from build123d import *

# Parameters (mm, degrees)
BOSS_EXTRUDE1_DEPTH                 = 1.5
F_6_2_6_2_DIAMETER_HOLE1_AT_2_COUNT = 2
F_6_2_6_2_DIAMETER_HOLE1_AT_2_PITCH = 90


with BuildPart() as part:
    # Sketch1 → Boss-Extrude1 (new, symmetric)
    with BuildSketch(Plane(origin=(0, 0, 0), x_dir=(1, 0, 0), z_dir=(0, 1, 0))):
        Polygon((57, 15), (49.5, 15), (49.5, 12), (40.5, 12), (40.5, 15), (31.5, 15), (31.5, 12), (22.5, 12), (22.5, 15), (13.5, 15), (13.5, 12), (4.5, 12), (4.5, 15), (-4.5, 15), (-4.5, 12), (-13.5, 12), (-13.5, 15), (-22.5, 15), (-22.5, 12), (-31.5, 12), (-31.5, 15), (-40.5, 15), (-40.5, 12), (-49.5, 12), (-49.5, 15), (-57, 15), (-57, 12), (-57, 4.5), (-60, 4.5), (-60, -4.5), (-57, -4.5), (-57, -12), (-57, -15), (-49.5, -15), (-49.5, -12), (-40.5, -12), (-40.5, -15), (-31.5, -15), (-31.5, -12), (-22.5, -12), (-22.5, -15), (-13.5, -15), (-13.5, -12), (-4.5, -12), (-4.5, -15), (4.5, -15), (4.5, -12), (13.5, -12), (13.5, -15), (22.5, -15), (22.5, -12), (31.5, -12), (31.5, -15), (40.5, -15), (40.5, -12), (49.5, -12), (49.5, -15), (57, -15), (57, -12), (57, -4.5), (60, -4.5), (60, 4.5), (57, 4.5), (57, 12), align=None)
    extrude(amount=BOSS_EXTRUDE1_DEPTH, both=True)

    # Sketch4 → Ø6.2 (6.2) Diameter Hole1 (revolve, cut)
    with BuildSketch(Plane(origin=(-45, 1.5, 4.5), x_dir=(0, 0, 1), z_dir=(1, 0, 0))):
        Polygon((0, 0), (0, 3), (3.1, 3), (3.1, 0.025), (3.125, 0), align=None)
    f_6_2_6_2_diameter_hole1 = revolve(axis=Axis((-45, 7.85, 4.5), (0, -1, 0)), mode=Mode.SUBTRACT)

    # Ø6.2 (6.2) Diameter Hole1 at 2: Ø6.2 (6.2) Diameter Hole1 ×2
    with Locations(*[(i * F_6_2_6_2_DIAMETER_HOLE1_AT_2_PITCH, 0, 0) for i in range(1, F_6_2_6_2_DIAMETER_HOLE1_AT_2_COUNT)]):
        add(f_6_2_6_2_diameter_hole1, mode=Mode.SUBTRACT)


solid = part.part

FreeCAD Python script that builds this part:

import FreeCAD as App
import Part
import Sketcher
Q = App.Units.Quantity

doc = App.newDocument("Part")
body = doc.addObject("PartDesign::Body", "Body")

sketch1 = doc.addObject("Sketcher::SketchObject", "Sketch")
body.addObject(sketch1)
sketch1.AttachmentSupport = (doc.XZ_Plane, [""])
sketch1.MapMode = "FlatFace"
sketch1.addGeometry(Part.LineSegment(App.Vector(57, -15, 0), App.Vector(49.5, -15, 0)), False)
sketch1.addGeometry(Part.LineSegment(App.Vector(49.5, -15, 0), App.Vector(49.5, -12, 0)), False)
sketch1.addGeometry(Part.LineSegment(App.Vector(49.5, -12, 0), App.Vector(40.5, -12, 0)), False)
sketch1.addGeometry(Part.LineSegment(App.Vector(40.5, -12, 0), App.Vector(40.5, -15, 0)), False)
sketch1.addGeometry(Part.LineSegment(App.Vector(40.5, -15, 0), App.Vector(31.5, -15, 0)), False)
sketch1.addGeometry(Part.LineSegment(App.Vector(31.5, -15, 0), App.Vector(31.5, -12, 0)), False)
sketch1.addGeometry(Part.LineSegment(App.Vector(31.5, -12, 0), App.Vector(22.5, -12, 0)), False)
sketch1.addGeometry(Part.LineSegment(App.Vector(22.5, -12, 0), App.Vector(22.5, -15, 0)), False)
sketch1.addGeometry(Part.LineSegment(App.Vector(22.5, -15, 0), App.Vector(13.5, -15, 0)), False)
sketch1.addGeometry(Part.LineSegment(App.Vector(13.5, -15, 0), App.Vector(13.5, -12, 0)), False)
sketch1.addGeometry(Part.LineSegment(App.Vector(13.5, -12, 0), App.Vector(4.5, -12, 0)), False)
sketch1.addGeometry(Part.LineSegment(App.Vector(4.5, -12, 0), App.Vector(4.5, -15, 0)), False)
sketch1.addGeometry(Part.LineSegment(App.Vector(4.5, -15, 0), App.Vector(-4.5, -15, 0)), False)
sketch1.addGeometry(Part.LineSegment(App.Vector(-4.5, -15, 0), App.Vector(-4.5, -12, 0)), False)
sketch1.addGeometry(Part.LineSegment(App.Vector(-4.5, -12, 0), App.Vector(-13.5, -12, 0)), False)
sketch1.addGeometry(Part.LineSegment(App.Vector(-13.5, -12, 0), App.Vector(-13.5, -15, 0)), False)
sketch1.addGeometry(Part.LineSegment(App.Vector(-13.5, -15, 0), App.Vector(-22.5, -15, 0)), False)
sketch1.addGeometry(Part.LineSegment(App.Vector(-22.5, -15, 0), App.Vector(-22.5, -12, 0)), False)
sketch1.addGeometry(Part.LineSegment(App.Vector(-22.5, -12, 0), App.Vector(-31.5, -12, 0)), False)
sketch1.addGeometry(Part.LineSegment(App.Vector(-31.5, -12, 0), App.Vector(-31.5, -15, 0)), False)
sketch1.addGeometry(Part.LineSegment(App.Vector(-31.5, -15, 0), App.Vector(-40.5, -15, 0)), False)
sketch1.addGeometry(Part.LineSegment(App.Vector(-40.5, -15, 0), App.Vector(-40.5, -12, 0)), False)
sketch1.addGeometry(Part.LineSegment(App.Vector(-40.5, -12, 0), App.Vector(-49.5, -12, 0)), False)
sketch1.addGeometry(Part.LineSegment(App.Vector(-49.5, -12, 0), App.Vector(-49.5, -15, 0)), False)
sketch1.addGeometry(Part.LineSegment(App.Vector(-49.5, -15, 0), App.Vector(-57, -15, 0)), False)
sketch1.addGeometry(Part.LineSegment(App.Vector(-57, -15, 0), App.Vector(-57, -4.5, 0)), False)
sketch1.addGeometry(Part.LineSegment(App.Vector(-57, -4.5, 0), App.Vector(-60, -4.5, 0)), False)
sketch1.addGeometry(Part.LineSegment(App.Vector(-60, -4.5, 0), App.Vector(-60, 4.5, 0)), False)
sketch1.addGeometry(Part.LineSegment(App.Vector(-60, 4.5, 0), App.Vector(-57, 4.5, 0)), False)
sketch1.addGeometry(Part.LineSegment(App.Vector(-57, 4.5, 0), App.Vector(-57, 15, 0)), False)
sketch1.addGeometry(Part.LineSegment(App.Vector(-57, 15, 0), App.Vector(-49.5, 15, 0)), False)
sketch1.addGeometry(Part.LineSegment(App.Vector(-49.5, 15, 0), App.Vector(-49.5, 12, 0)), False)
sketch1.addGeometry(Part.LineSegment(App.Vector(-49.5, 12, 0), App.Vector(-40.5, 12, 0)), False)
sketch1.addGeometry(Part.LineSegment(App.Vector(-40.5, 12, 0), App.Vector(-40.5, 15, 0)), False)
sketch1.addGeometry(Part.LineSegment(App.Vector(-40.5, 15, 0), App.Vector(-31.5, 15, 0)), False)
sketch1.addGeometry(Part.LineSegment(App.Vector(-31.5, 15, 0), App.Vector(-31.5, 12, 0)), False)
sketch1.addGeometry(Part.LineSegment(App.Vector(-31.5, 12, 0), App.Vector(-22.5, 12, 0)), False)
sketch1.addGeometry(Part.LineSegment(App.Vector(-22.5, 12, 0), App.Vector(-22.5, 15, 0)), False)
sketch1.addGeometry(Part.LineSegment(App.Vector(-22.5, 15, 0), App.Vector(-13.5, 15, 0)), False)
sketch1.addGeometry(Part.LineSegment(App.Vector(-13.5, 15, 0), App.Vector(-13.5, 12, 0)), False)
sketch1.addGeometry(Part.LineSegment(App.Vector(-13.5, 12, 0), App.Vector(-4.5, 12, 0)), False)
sketch1.addGeometry(Part.LineSegment(App.Vector(-4.5, 12, 0), App.Vector(-4.5, 15, 0)), False)
sketch1.addGeometry(Part.LineSegment(App.Vector(-4.5, 15, 0), App.Vector(4.5, 15, 0)), False)
sketch1.addGeometry(Part.LineSegment(App.Vector(4.5, 15, 0), App.Vector(4.5, 12, 0)), False)
sketch1.addGeometry(Part.LineSegment(App.Vector(4.5, 12, 0), App.Vector(13.5, 12, 0)), False)
sketch1.addGeometry(Part.LineSegment(App.Vector(13.5, 12, 0), App.Vector(13.5, 15, 0)), False)
sketch1.addGeometry(Part.LineSegment(App.Vector(13.5, 15, 0), App.Vector(22.5, 15, 0)), False)
sketch1.addGeometry(Part.LineSegment(App.Vector(22.5, 15, 0), App.Vector(22.5, 12, 0)), False)
sketch1.addGeometry(Part.LineSegment(App.Vector(22.5, 12, 0), App.Vector(31.5, 12, 0)), False)
sketch1.addGeometry(Part.LineSegment(App.Vector(31.5, 12, 0), App.Vector(31.5, 15, 0)), False)
sketch1.addGeometry(Part.LineSegment(App.Vector(31.5, 15, 0), App.Vector(40.5, 15, 0)), False)
sketch1.addGeometry(Part.LineSegment(App.Vector(40.5, 15, 0), App.Vector(40.5, 12, 0)), False)
sketch1.addGeometry(Part.LineSegment(App.Vector(40.5, 12, 0), App.Vector(49.5, 12, 0)), False)
sketch1.addGeometry(Part.LineSegment(App.Vector(49.5, 12, 0), App.Vector(49.5, 15, 0)), False)
sketch1.addGeometry(Part.LineSegment(App.Vector(49.5, 15, 0), App.Vector(57, 15, 0)), False)
sketch1.addGeometry(Part.LineSegment(App.Vector(57, 15, 0), App.Vector(57, 4.5, 0)), False)
sketch1.addGeometry(Part.LineSegment(App.Vector(57, 4.5, 0), App.Vector(60, 4.5, 0)), False)
sketch1.addGeometry(Part.LineSegment(App.Vector(60, 4.5, 0), App.Vector(60, -4.5, 0)), False)
sketch1.addGeometry(Part.LineSegment(App.Vector(60, -4.5, 0), App.Vector(57, -4.5, 0)), False)
sketch1.addGeometry(Part.LineSegment(App.Vector(57, -4.5, 0), App.Vector(57, -15, 0)), False)
sketch1.addConstraint(Sketcher.Constraint("Coincident", 0, 2, 1, 1))
sketch1.addConstraint(Sketcher.Constraint("Coincident", 1, 2, 2, 1))
sketch1.addConstraint(Sketcher.Constraint("Coincident", 2, 2, 3, 1))
sketch1.addConstraint(Sketcher.Constraint("Coincident", 3, 2, 4, 1))
sketch1.addConstraint(Sketcher.Constraint("Coincident", 4, 2, 5, 1))
sketch1.addConstraint(Sketcher.Constraint("Coincident", 5, 2, 6, 1))
sketch1.addConstraint(Sketcher.Constraint("Coincident", 6, 2, 7, 1))
sketch1.addConstraint(Sketcher.Constraint("Coincident", 7, 2, 8, 1))
sketch1.addConstraint(Sketcher.Constraint("Coincident", 8, 2, 9, 1))
sketch1.addConstraint(Sketcher.Constraint("Coincident", 9, 2, 10, 1))
sketch1.addConstraint(Sketcher.Constraint("Coincident", 10, 2, 11, 1))
sketch1.addConstraint(Sketcher.Constraint("Coincident", 11, 2, 12, 1))
sketch1.addConstraint(Sketcher.Constraint("Coincident", 12, 2, 13, 1))
sketch1.addConstraint(Sketcher.Constraint("Coincident", 13, 2, 14, 1))
sketch1.addConstraint(Sketcher.Constraint("Coincident", 14, 2, 15, 1))
sketch1.addConstraint(Sketcher.Constraint("Coincident", 15, 2, 16, 1))
sketch1.addConstraint(Sketcher.Constraint("Coincident", 16, 2, 17, 1))
sketch1.addConstraint(Sketcher.Constraint("Coincident", 17, 2, 18, 1))
sketch1.addConstraint(Sketcher.Constraint("Coincident", 18, 2, 19, 1))
sketch1.addConstraint(Sketcher.Constraint("Coincident", 19, 2, 20, 1))
sketch1.addConstraint(Sketcher.Constraint("Coincident", 20, 2, 21, 1))
sketch1.addConstraint(Sketcher.Constraint("Coincident", 21, 2, 22, 1))
sketch1.addConstraint(Sketcher.Constraint("Coincident", 22, 2, 23, 1))
sketch1.addConstraint(Sketcher.Constraint("Coincident", 23, 2, 24, 1))
sketch1.addConstraint(Sketcher.Constraint("Coincident", 24, 2, 25, 1))
sketch1.addConstraint(Sketcher.Constraint("Coincident", 25, 2, 26, 1))
sketch1.addConstraint(Sketcher.Constraint("Coincident", 26, 2, 27, 1))
sketch1.addConstraint(Sketcher.Constraint("Coincident", 27, 2, 28, 1))
sketch1.addConstraint(Sketcher.Constraint("Coincident", 28, 2, 29, 1))
sketch1.addConstraint(Sketcher.Constraint("Coincident", 29, 2, 30, 1))
sketch1.addConstraint(Sketcher.Constraint("Coincident", 30, 2, 31, 1))
sketch1.addConstraint(Sketcher.Constraint("Coincident", 31, 2, 32, 1))
sketch1.addConstraint(Sketcher.Constraint("Coincident", 32, 2, 33, 1))
sketch1.addConstraint(Sketcher.Constraint("Coincident", 33, 2, 34, 1))
sketch1.addConstraint(Sketcher.Constraint("Coincident", 34, 2, 35, 1))
sketch1.addConstraint(Sketcher.Constraint("Coincident", 35, 2, 36, 1))
sketch1.addConstraint(Sketcher.Constraint("Coincident", 36, 2, 37, 1))
sketch1.addConstraint(Sketcher.Constraint("Coincident", 37, 2, 38, 1))
sketch1.addConstraint(Sketcher.Constraint("Coincident", 38, 2, 39, 1))
sketch1.addConstraint(Sketcher.Constraint("Coincident", 39, 2, 40, 1))
sketch1.addConstraint(Sketcher.Constraint("Coincident", 40, 2, 41, 1))
sketch1.addConstraint(Sketcher.Constraint("Coincident", 41, 2, 42, 1))
sketch1.addConstraint(Sketcher.Constraint("Coincident", 42, 2, 43, 1))
sketch1.addConstraint(Sketcher.Constraint("Coincident", 43, 2, 44, 1))
sketch1.addConstraint(Sketcher.Constraint("Coincident", 44, 2, 45, 1))
sketch1.addConstraint(Sketcher.Constraint("Coincident", 45, 2, 46, 1))
sketch1.addConstraint(Sketcher.Constraint("Coincident", 46, 2, 47, 1))
sketch1.addConstraint(Sketcher.Constraint("Coincident", 47, 2, 48, 1))
sketch1.addConstraint(Sketcher.Constraint("Coincident", 48, 2, 49, 1))
sketch1.addConstraint(Sketcher.Constraint("Coincident", 49, 2, 50, 1))
sketch1.addConstraint(Sketcher.Constraint("Coincident", 50, 2, 51, 1))
sketch1.addConstraint(Sketcher.Constraint("Coincident", 51, 2, 52, 1))
sketch1.addConstraint(Sketcher.Constraint("Coincident", 52, 2, 53, 1))
sketch1.addConstraint(Sketcher.Constraint("Coincident", 53, 2, 54, 1))
sketch1.addConstraint(Sketcher.Constraint("Coincident", 54, 2, 55, 1))
sketch1.addConstraint(Sketcher.Constraint("Coincident", 55, 2, 56, 1))
sketch1.addConstraint(Sketcher.Constraint("Coincident", 56, 2, 57, 1))
sketch1.addConstraint(Sketcher.Constraint("Coincident", 57, 2, 58, 1))
sketch1.addConstraint(Sketcher.Constraint("Coincident", 58, 2, 59, 1))
sketch1.addConstraint(Sketcher.Constraint("Coincident", 59, 2, 0, 1))
sketch1.addConstraint(Sketcher.Constraint("Horizontal", 0))
sketch1.addConstraint(Sketcher.Constraint("Vertical", 1))
sketch1.addConstraint(Sketcher.Constraint("Horizontal", 2))
sketch1.addConstraint(Sketcher.Constraint("Vertical", 3))
sketch1.addConstraint(Sketcher.Constraint("Horizontal", 4))
sketch1.addConstraint(Sketcher.Constraint("Vertical", 5))
sketch1.addConstraint(Sketcher.Constraint("Horizontal", 6))
sketch1.addConstraint(Sketcher.Constraint("Vertical", 7))
sketch1.addConstraint(Sketcher.Constraint("Horizontal", 8))
sketch1.addConstraint(Sketcher.Constraint("Vertical", 9))
sketch1.addConstraint(Sketcher.Constraint("Horizontal", 10))
sketch1.addConstraint(Sketcher.Constraint("Vertical", 11))
sketch1.addConstraint(Sketcher.Constraint("Horizontal", 12))
sketch1.addConstraint(Sketcher.Constraint("Vertical", 13))
sketch1.addConstraint(Sketcher.Constraint("Horizontal", 14))
sketch1.addConstraint(Sketcher.Constraint("Vertical", 15))
sketch1.addConstraint(Sketcher.Constraint("Horizontal", 16))
sketch1.addConstraint(Sketcher.Constraint("Vertical", 17))
sketch1.addConstraint(Sketcher.Constraint("Horizontal", 18))
sketch1.addConstraint(Sketcher.Constraint("Vertical", 19))
sketch1.addConstraint(Sketcher.Constraint("Horizontal", 20))
sketch1.addConstraint(Sketcher.Constraint("Vertical", 21))
sketch1.addConstraint(Sketcher.Constraint("Horizontal", 22))
sketch1.addConstraint(Sketcher.Constraint("Vertical", 23))
sketch1.addConstraint(Sketcher.Constraint("Horizontal", 24))
sketch1.addConstraint(Sketcher.Constraint("Vertical", 25))
sketch1.addConstraint(Sketcher.Constraint("Horizontal", 26))
sketch1.addConstraint(Sketcher.Constraint("Vertical", 27))
sketch1.addConstraint(Sketcher.Constraint("Horizontal", 28))
sketch1.addConstraint(Sketcher.Constraint("Vertical", 29))
sketch1.addConstraint(Sketcher.Constraint("Horizontal", 30))
sketch1.addConstraint(Sketcher.Constraint("Vertical", 31))
sketch1.addConstraint(Sketcher.Constraint("Horizontal", 32))
sketch1.addConstraint(Sketcher.Constraint("Vertical", 33))
sketch1.addConstraint(Sketcher.Constraint("Horizontal", 34))
sketch1.addConstraint(Sketcher.Constraint("Vertical", 35))
sketch1.addConstraint(Sketcher.Constraint("Horizontal", 36))
sketch1.addConstraint(Sketcher.Constraint("Vertical", 37))
sketch1.addConstraint(Sketcher.Constraint("Horizontal", 38))
sketch1.addConstraint(Sketcher.Constraint("Vertical", 39))
sketch1.addConstraint(Sketcher.Constraint("Horizontal", 40))
sketch1.addConstraint(Sketcher.Constraint("Vertical", 41))
sketch1.addConstraint(Sketcher.Constraint("Horizontal", 42))
sketch1.addConstraint(Sketcher.Constraint("Vertical", 43))
sketch1.addConstraint(Sketcher.Constraint("Horizontal", 44))
sketch1.addConstraint(Sketcher.Constraint("Vertical", 45))
sketch1.addConstraint(Sketcher.Constraint("Horizontal", 46))
sketch1.addConstraint(Sketcher.Constraint("Vertical", 47))
sketch1.addConstraint(Sketcher.Constraint("Horizontal", 48))
sketch1.addConstraint(Sketcher.Constraint("Vertical", 49))
sketch1.addConstraint(Sketcher.Constraint("Horizontal", 50))
sketch1.addConstraint(Sketcher.Constraint("Vertical", 51))
sketch1.addConstraint(Sketcher.Constraint("Horizontal", 52))
sketch1.addConstraint(Sketcher.Constraint("Vertical", 53))
sketch1.addConstraint(Sketcher.Constraint("Horizontal", 54))
sketch1.addConstraint(Sketcher.Constraint("Vertical", 55))
sketch1.addConstraint(Sketcher.Constraint("Horizontal", 56))
sketch1.addConstraint(Sketcher.Constraint("Vertical", 57))
sketch1.addConstraint(Sketcher.Constraint("Horizontal", 58))
sketch1.addConstraint(Sketcher.Constraint("Vertical", 59))
sketch1.addConstraint(Sketcher.Constraint("Symmetric", 0, 2, 30, 2, -1, 1))
sketch1.addConstraint(Sketcher.Constraint("Symmetric", 2, 2, 32, 2, -1, 1))
sketch1.addConstraint(Sketcher.Constraint("Symmetric", 4, 2, 34, 2, -1, 1))
sketch1.addConstraint(Sketcher.Constraint("Symmetric", 6, 2, 36, 2, -1, 1))
sketch1.addConstraint(Sketcher.Constraint("Symmetric", 8, 2, 38, 2, -1, 1))
sketch1.addConstraint(Sketcher.Constraint("Symmetric", 10, 2, 40, 2, -1, 1))
sketch1.addConstraint(Sketcher.Constraint("Symmetric", 12, 2, 42, 2, -1, 1))
sketch1.addConstraint(Sketcher.Constraint("Symmetric", 14, 2, 44, 2, -1, 1))
sketch1.addConstraint(Sketcher.Constraint("Symmetric", 16, 2, 46, 2, -1, 1))
sketch1.addConstraint(Sketcher.Constraint("Symmetric", 18, 2, 48, 2, -1, 1))
sketch1.addConstraint(Sketcher.Constraint("Symmetric", 20, 2, 50, 2, -1, 1))
sketch1.addConstraint(Sketcher.Constraint("Symmetric", 22, 2, 52, 2, -1, 1))
sketch1.addConstraint(Sketcher.Constraint("Symmetric", 24, 2, 54, 2, -1, 1))
sketch1.addConstraint(Sketcher.Constraint("Symmetric", 26, 2, 56, 2, -1, 1))
sketch1.addConstraint(Sketcher.Constraint("Symmetric", 28, 2, 58, 2, -1, 1))
sketch1.addConstraint(Sketcher.Constraint("Symmetric", 10, 2, 13, 2, -2))
sketch1.addConstraint(Sketcher.Constraint("Symmetric", 8, 2, 15, 2, -2))
sketch1.addConstraint(Sketcher.Constraint("Symmetric", 6, 2, 17, 2, -2))
sketch1.addConstraint(Sketcher.Constraint("Symmetric", 4, 2, 19, 2, -2))
sketch1.addConstraint(Sketcher.Constraint("Symmetric", 2, 2, 21, 2, -2))
sketch1.addConstraint(Sketcher.Constraint("Symmetric", 0, 2, 23, 2, -2))
sketch1.addConstraint(Sketcher.Constraint("Symmetric", 28, 2, 55, 2, -2))
sketch1.addConstraint(Sketcher.Constraint("Horizontal", 0, 2, 3, 2))
sketch1.addConstraint(Sketcher.Constraint("Horizontal", 2, 2, 5, 2))
sketch1.addConstraint(Sketcher.Constraint("Horizontal", 4, 2, 7, 2))
sketch1.addConstraint(Sketcher.Constraint("Horizontal", 6, 2, 9, 2))
sketch1.addConstraint(Sketcher.Constraint("Horizontal", 8, 2, 11, 2))
sketch1.addConstraint(Sketcher.Constraint("Equal", 2, 4))
sketch1.addConstraint(Sketcher.Constraint("Equal", 4, 6))
sketch1.addConstraint(Sketcher.Constraint("Equal", 6, 8))
sketch1.addConstraint(Sketcher.Constraint("Equal", 8, 10))
sketch1.addConstraint(Sketcher.Constraint("Equal", 10, 12))
sketch1.addConstraint(Sketcher.Constraint("Equal", 58, 1))
sketch1.addConstraint(Sketcher.Constraint("Equal", 52, 27))
sketch1.addConstraint(Sketcher.Constraint("DistanceX", 2, 2, 2, 1, Q("9 mm")))
sketch1.addConstraint(Sketcher.Constraint("DistanceX", 26, 2, 26, 1, Q("3 mm")))
sketch1.addConstraint(Sketcher.Constraint("DistanceX", 0, 2, 0, 1, Q("7.5 mm")))
sketch1.addConstraint(Sketcher.Constraint("DistanceY", 25, 1, 25, 2, Q("10.5 mm")))
pad1 = doc.addObject("PartDesign::Pad", "Pad")
body.addObject(pad1)
pad1.Profile = sketch1
pad1.Length = 3
pad1.Midplane = True

sketch2 = doc.addObject("Sketcher::SketchObject", "Sketch001")
body.addObject(sketch2)
sketch2.AttachmentSupport = (doc.YZ_Plane, [""])
sketch2.MapMode = "FlatFace"
sketch2.AttachmentOffset = App.Placement(App.Vector(0, 0, -45), App.Rotation())
sketch2.addGeometry(Part.LineSegment(App.Vector(-1.5, 4.5, 0), App.Vector(1.5, 4.5, 0)), False)
sketch2.addGeometry(Part.LineSegment(App.Vector(1.5, 4.5, 0), App.Vector(1.5, 7.625, 0)), False)
sketch2.addGeometry(Part.LineSegment(App.Vector(1.5, 7.625, 0), App.Vector(1.475, 7.6, 0)), False)
sketch2.addGeometry(Part.LineSegment(App.Vector(1.475, 7.6, 0), App.Vector(-1.5, 7.6, 0)), False)
sketch2.addGeometry(Part.LineSegment(App.Vector(-1.5, 7.6, 0), App.Vector(-1.5, 4.5, 0)), False)
sketch2.addGeometry(Part.LineSegment(App.Vector(1.5, 4.5, 0), App.Vector(-1.5, 4.5, 0)), True)
sketch2.addConstraint(Sketcher.Constraint("Coincident", 0, 2, 1, 1))
sketch2.addConstraint(Sketcher.Constraint("Coincident", 1, 2, 2, 1))
sketch2.addConstraint(Sketcher.Constraint("Coincident", 2, 2, 3, 1))
sketch2.addConstraint(Sketcher.Constraint("Coincident", 3, 2, 4, 1))
sketch2.addConstraint(Sketcher.Constraint("Coincident", 4, 2, 0, 1))
sketch2.addConstraint(Sketcher.Constraint("Horizontal", 0))
sketch2.addConstraint(Sketcher.Constraint("Vertical", 1))
sketch2.addConstraint(Sketcher.Constraint("Horizontal", 3))
sketch2.addConstraint(Sketcher.Constraint("Vertical", 4))
sketch2.addConstraint(Sketcher.Constraint("Horizontal", 5))
sketch2.addConstraint(Sketcher.Constraint("Coincident", 5, 1, 0, 2))
sketch2.addConstraint(Sketcher.Constraint("Vertical", 3, 2, 5, 2))
sketch2.addConstraint(Sketcher.Constraint("DistanceX", 0, 1, 0, 2, Q("3 mm")))
sketch2.addConstraint(Sketcher.Constraint("Angle", 2, Q("-135 deg")))
sketch2.addConstraint(Sketcher.Constraint("DistanceY", 4, 2, 4, 1, Q("3.1 mm")))
sketch2.addConstraint(Sketcher.Constraint("DistanceX", -1, 1, 0, 2, Q("1.5 mm")))
sketch2.addConstraint(Sketcher.Constraint("DistanceY", -1, 1, 0, 2, Q("4.5 mm")))
sketch2.addConstraint(Sketcher.Constraint("DistanceX", 3, 2, 3, 1, Q("2.975 mm")))
groove = doc.addObject("PartDesign::Groove", "Groove")
body.addObject(groove)
groove.Profile = sketch2
groove.ReferenceAxis = (sketch2, ["Axis0"])
groove.Angle = 360
doc.recompute()

linearpattern = doc.addObject("PartDesign::LinearPattern", "LinearPattern")
body.addObject(linearpattern)
linearpattern.Originals = [groove]
linearpattern.Direction = (doc.X_Axis, [""])
linearpattern.Mode = "offset"
linearpattern.Offset = 90
linearpattern.Occurrences = 2
body.Tip = linearpattern

doc.recompute()
